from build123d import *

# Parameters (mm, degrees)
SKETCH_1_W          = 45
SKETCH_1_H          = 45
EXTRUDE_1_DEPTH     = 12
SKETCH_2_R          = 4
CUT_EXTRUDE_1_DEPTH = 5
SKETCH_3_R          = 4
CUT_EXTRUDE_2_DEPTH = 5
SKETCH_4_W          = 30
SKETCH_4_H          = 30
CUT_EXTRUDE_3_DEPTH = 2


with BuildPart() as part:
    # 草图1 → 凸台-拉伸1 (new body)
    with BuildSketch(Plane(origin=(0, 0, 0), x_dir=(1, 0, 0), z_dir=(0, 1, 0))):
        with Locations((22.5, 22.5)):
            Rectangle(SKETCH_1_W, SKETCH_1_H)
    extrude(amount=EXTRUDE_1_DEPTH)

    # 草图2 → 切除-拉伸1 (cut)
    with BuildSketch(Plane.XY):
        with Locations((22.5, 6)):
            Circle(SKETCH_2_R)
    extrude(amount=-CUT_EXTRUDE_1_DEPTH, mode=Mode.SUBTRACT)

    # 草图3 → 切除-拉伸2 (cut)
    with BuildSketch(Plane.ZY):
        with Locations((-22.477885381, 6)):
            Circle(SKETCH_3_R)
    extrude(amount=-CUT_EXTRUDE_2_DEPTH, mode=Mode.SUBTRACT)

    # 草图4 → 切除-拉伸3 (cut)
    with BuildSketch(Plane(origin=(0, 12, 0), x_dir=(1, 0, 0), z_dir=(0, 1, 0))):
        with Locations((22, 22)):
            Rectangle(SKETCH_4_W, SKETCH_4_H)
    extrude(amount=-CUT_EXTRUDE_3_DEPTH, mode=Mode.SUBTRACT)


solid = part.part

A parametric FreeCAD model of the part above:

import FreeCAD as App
import Part
import Sketcher

V = App.Vector
Q = App.Units.Quantity

doc = App.newDocument("Part")
body = doc.addObject("PartDesign::Body", "Body")

sketch1 = doc.addObject("Sketcher::SketchObject", "Sketch")
body.addObject(sketch1)
sketch1.AttachmentSupport = (doc.XZ_Plane, [""])
sketch1.MapMode = "FlatFace"
sketch1.addGeometry([
    Part.LineSegment(V(0, -45, 0), V(0, 0, 0)),
    Part.LineSegment(V(0, 0, 0), V(45, 0, 0)),
    Part.LineSegment(V(45, 0, 0), V(45, -45, 0)),
    Part.LineSegment(V(45, -45, 0), V(0, -45, 0)),
], False)
sketch1.addConstraint([
    Sketcher.Constraint("Coincident", 0, 2, 1, 1),
    Sketcher.Constraint("Coincident", 1, 2, 2, 1),
    Sketcher.Constraint("Coincident", 2, 2, 3, 1),
    Sketcher.Constraint("Coincident", 3, 2, 0, 1),
    Sketcher.Constraint("Vertical", 0),
    Sketcher.Constraint("Horizontal", 1),
    Sketcher.Constraint("Vertical", 2),
    Sketcher.Constraint("Horizontal", 3),
    Sketcher.Constraint("Coincident", 0, 2, -1, 1),
    Sketcher.Constraint("Equal", 3, 0),
    Sketcher.Constraint("DistanceX", 1, 1, 1, 2, Q("45 mm")),
])
pad1 = doc.addObject("PartDesign::Pad", "Pad")
body.addObject(pad1)
pad1.Profile = sketch1
pad1.Length = 12
pad1.Reversed = True

sketch2 = doc.addObject("Sketcher::SketchObject", "Sketch001")
body.addObject(sketch2)
sketch2.AttachmentSupport = (doc.XY_Plane, [""])
sketch2.MapMode = "FlatFace"
sketch2.addGeometry(Part.Circle(V(22.5, 6, 0), V(0, 0, 1), 4), False)
sketch2.addConstraint([
    Sketcher.Constraint("Diameter", 0, Q("8 mm")),
    Sketcher.Constraint("DistanceY", -1, 1, 0, 3, Q("6 mm")),
    Sketcher.Constraint("DistanceX", -1, 1, 0, 3, Q("22.5 mm")),
])
pocket1 = doc.addObject("PartDesign::Pocket", "Pocket")
body.addObject(pocket1)
pocket1.Profile = sketch2
pocket1.Length = 5

sketch3 = doc.addObject("Sketcher::SketchObject", "Sketch002")
body.addObject(sketch3)
sketch3.AttachmentSupport = (doc.YZ_Plane, [""])
sketch3.MapMode = "FlatFace"
sketch3.addGeometry(Part.Circle(V(6, -22.477885, 0), V(0, 0, 1), 4), False)
sketch3.addConstraint([
    Sketcher.Constraint("Diameter", 0, Q("8 mm")),
    Sketcher.Constraint("DistanceX", -1, 1, 0, 3, Q("6 mm")),
    Sketcher.Constraint("DistanceY", 0, 3, -1, 1, Q("22.477885 mm")),
])
pocket2 = doc.addObject("PartDesign::Pocket", "Pocket001")
body.addObject(pocket2)
pocket2.Profile = sketch3
pocket2.Length = 5
pocket2.Reversed = True

sketch4 = doc.addObject("Sketcher::SketchObject", "Sketch003")
body.addObject(sketch4)
sketch4.AttachmentSupport = (doc.XZ_Plane, [""])
sketch4.MapMode = "FlatFace"
sketch4.AttachmentOffset = App.Placement(V(0, 0, -12), App.Rotation())
sketch4.addGeometry([
    Part.LineSegment(V(7, -37, 0), V(7, -7, 0)),
    Part.LineSegment(V(7, -7, 0), V(37, -7, 0)),
    Part.LineSegment(V(37, -7, 0), V(37, -37, 0)),
    Part.LineSegment(V(37, -37, 0), V(7, -37, 0)),
], False)
sketch4.addConstraint([
    Sketcher.Constraint("Coincident", 0, 2, 1, 1),
    Sketcher.Constraint("Coincident", 1, 2, 2, 1),
    Sketcher.Constraint("Coincident", 2, 2, 3, 1),
    Sketcher.Constraint("Coincident", 3, 2, 0, 1),
    Sketcher.Constraint("Vertical", 0),
    Sketcher.Constraint("Horizontal", 1),
    Sketcher.Constraint("Vertical", 2),
    Sketcher.Constraint("Horizontal", 3),
    Sketcher.Constraint("Equal", 3, 0),
    Sketcher.Constraint("DistanceX", 1, 1, 1, 2, Q("30 mm")),
    Sketcher.Constraint("DistanceX", -1, 1, 0, 2, Q("7 mm")),
    Sketcher.Constraint("DistanceY", 0, 2, -1, 1, Q("7 mm")),
])
pocket3 = doc.addObject("PartDesign::Pocket", "Pocket002")
body.addObject(pocket3)
pocket3.Profile = sketch4
pocket3.Length = 2
pocket3.Reversed = True

doc.recompute()
